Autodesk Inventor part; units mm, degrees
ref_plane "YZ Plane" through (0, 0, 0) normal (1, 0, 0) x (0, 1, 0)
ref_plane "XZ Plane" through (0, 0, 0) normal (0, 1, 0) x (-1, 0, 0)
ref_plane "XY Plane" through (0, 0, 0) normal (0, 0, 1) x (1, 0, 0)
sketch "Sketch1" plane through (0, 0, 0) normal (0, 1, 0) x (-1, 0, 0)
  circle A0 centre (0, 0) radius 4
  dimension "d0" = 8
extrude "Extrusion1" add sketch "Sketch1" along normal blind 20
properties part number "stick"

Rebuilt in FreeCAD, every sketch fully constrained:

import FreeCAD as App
import Part
import Sketcher

V = App.Vector

doc = App.newDocument("Part")
body = doc.addObject("PartDesign::Body", "Body")

sketch1 = body.newObject("Sketcher::SketchObject", "Sketch")
sketch1.AttachmentSupport = (doc.getObject("XZ_Plane"), [""])
sketch1.MapMode = "FlatFace"
sketch1.addGeometry(Part.Circle(V(0, 0, 0), V(0, 0, 1), 4), False)
sketch1.addConstraint([
    Sketcher.Constraint("Coincident", 0, 3, -1, 1),
    Sketcher.Constraint("Diameter", 0, 8.0),
])
pad1 = body.newObject("PartDesign::Pad", "Pad")
pad1.Profile = sketch1
pad1.Length = 20
pad1.Reversed = True

doc.recompute()
